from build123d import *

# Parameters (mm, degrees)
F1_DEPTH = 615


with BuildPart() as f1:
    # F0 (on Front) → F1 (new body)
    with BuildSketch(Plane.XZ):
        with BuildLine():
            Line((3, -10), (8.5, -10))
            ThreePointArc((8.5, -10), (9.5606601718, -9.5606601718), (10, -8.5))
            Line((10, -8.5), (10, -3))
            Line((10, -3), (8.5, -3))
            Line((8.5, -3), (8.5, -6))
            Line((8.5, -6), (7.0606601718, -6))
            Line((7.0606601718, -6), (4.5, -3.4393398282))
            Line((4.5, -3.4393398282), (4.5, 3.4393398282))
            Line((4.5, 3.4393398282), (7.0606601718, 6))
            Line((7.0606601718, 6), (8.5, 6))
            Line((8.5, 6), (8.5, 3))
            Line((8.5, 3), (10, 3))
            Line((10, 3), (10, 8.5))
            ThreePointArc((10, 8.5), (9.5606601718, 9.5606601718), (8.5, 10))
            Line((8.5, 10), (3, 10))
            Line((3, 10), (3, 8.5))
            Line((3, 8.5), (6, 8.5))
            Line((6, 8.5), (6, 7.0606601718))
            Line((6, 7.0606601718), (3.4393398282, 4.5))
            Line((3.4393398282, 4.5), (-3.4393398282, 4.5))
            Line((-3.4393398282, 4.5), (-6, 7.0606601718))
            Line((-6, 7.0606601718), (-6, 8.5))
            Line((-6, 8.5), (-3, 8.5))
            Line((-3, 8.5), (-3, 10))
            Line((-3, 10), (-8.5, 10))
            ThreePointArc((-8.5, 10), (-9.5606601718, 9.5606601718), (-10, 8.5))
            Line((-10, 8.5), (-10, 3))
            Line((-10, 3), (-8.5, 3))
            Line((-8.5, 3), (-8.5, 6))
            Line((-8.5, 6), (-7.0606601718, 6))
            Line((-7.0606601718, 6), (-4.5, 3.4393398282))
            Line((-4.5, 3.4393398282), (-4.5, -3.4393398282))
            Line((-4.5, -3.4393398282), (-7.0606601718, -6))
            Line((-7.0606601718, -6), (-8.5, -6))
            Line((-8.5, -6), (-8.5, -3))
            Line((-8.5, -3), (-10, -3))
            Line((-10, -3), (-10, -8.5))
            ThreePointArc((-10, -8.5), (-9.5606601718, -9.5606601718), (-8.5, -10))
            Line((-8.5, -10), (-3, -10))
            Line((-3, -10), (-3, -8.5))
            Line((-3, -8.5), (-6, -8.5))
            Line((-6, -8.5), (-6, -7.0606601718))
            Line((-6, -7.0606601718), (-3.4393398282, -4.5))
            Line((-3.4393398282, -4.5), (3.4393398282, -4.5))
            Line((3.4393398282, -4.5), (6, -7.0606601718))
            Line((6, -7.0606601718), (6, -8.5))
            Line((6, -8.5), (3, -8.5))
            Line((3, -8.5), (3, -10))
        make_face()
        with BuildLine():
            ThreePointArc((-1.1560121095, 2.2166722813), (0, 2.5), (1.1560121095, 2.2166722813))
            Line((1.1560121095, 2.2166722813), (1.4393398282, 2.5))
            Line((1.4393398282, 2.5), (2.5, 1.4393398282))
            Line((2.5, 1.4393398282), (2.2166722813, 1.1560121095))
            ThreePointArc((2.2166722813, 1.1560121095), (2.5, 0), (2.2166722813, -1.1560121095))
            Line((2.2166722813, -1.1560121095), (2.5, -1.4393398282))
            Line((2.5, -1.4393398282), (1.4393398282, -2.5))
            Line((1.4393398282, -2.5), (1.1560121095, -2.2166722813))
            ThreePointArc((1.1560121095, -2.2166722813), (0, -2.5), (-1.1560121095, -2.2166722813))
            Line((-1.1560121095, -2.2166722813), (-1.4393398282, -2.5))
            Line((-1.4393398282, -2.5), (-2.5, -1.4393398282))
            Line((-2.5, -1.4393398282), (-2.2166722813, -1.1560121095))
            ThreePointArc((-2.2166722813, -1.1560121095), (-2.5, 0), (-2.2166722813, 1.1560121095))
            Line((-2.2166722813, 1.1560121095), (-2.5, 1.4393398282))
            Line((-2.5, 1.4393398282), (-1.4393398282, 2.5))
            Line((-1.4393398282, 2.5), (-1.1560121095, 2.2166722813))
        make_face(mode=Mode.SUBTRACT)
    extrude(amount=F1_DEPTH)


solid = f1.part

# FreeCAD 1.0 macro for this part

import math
import FreeCAD as App
import Part
import Sketcher
Q = App.Units.Quantity

doc = App.newDocument("Part")
body = doc.addObject("PartDesign::Body", "Body")

# Sketch on XZ plane
sketch1 = body.newObject("Sketcher::SketchObject", "Sketch")
sketch1.AttachmentSupport = (doc.getObject("XZ_Plane"), [""])
sketch1.MapMode = "FlatFace"
sketch1.addGeometry(Part.LineSegment(App.Vector(3, -10, 0), App.Vector(8.5, -10, 0)), False)
sketch1.addGeometry(Part.ArcOfCircle(Part.Circle(App.Vector(8.5, -8.5, 0), App.Vector(0, 0, 1), 1.5), math.radians(-90), math.radians(0)), False)
sketch1.addGeometry(Part.LineSegment(App.Vector(10, -8.5, 0), App.Vector(10, -3, 0)), False)
sketch1.addGeometry(Part.LineSegment(App.Vector(10, -3, 0), App.Vector(8.5, -3, 0)), False)
sketch1.addGeometry(Part.LineSegment(App.Vector(8.5, -3, 0), App.Vector(8.5, -6, 0)), False)
sketch1.addGeometry(Part.LineSegment(App.Vector(8.5, -6, 0), App.Vector(7.06066, -6, 0)), False)
sketch1.addGeometry(Part.LineSegment(App.Vector(7.06066, -6, 0), App.Vector(4.5, -3.43934, 0)), False)
sketch1.addGeometry(Part.LineSegment(App.Vector(4.5, -3.43934, 0), App.Vector(4.5, 3.43934, 0)), False)
sketch1.addGeometry(Part.LineSegment(App.Vector(4.5, 3.43934, 0), App.Vector(7.06066, 6, 0)), False)
sketch1.addGeometry(Part.LineSegment(App.Vector(7.06066, 6, 0), App.Vector(8.5, 6, 0)), False)
sketch1.addGeometry(Part.LineSegment(App.Vector(8.5, 6, 0), App.Vector(8.5, 3, 0)), False)
sketch1.addGeometry(Part.LineSegment(App.Vector(8.5, 3, 0), App.Vector(10, 3, 0)), False)
sketch1.addGeometry(Part.LineSegment(App.Vector(10, 3, 0), App.Vector(10, 8.5, 0)), False)
sketch1.addGeometry(Part.ArcOfCircle(Part.Circle(App.Vector(8.5, 8.5, 0), App.Vector(0, 0, 1), 1.5), math.radians(0), math.radians(90)), False)
sketch1.addGeometry(Part.LineSegment(App.Vector(8.5, 10, 0), App.Vector(3, 10, 0)), False)
sketch1.addGeometry(Part.LineSegment(App.Vector(3, 10, 0), App.Vector(3, 8.5, 0)), False)
sketch1.addGeometry(Part.LineSegment(App.Vector(3, 8.5, 0), App.Vector(6, 8.5, 0)), False)
sketch1.addGeometry(Part.LineSegment(App.Vector(6, 8.5, 0), App.Vector(6, 7.06066, 0)), False)
sketch1.addGeometry(Part.LineSegment(App.Vector(6, 7.06066, 0), App.Vector(3.43934, 4.5, 0)), False)
sketch1.addGeometry(Part.LineSegment(App.Vector(3.43934, 4.5, 0), App.Vector(-3.43934, 4.5, 0)), False)
sketch1.addGeometry(Part.LineSegment(App.Vector(-3.43934, 4.5, 0), App.Vector(-6, 7.06066, 0)), False)
sketch1.addGeometry(Part.LineSegment(App.Vector(-6, 7.06066, 0), App.Vector(-6, 8.5, 0)), False)
sketch1.addGeometry(Part.LineSegment(App.Vector(-6, 8.5, 0), App.Vector(-3, 8.5, 0)), False)
sketch1.addGeometry(Part.LineSegment(App.Vector(-3, 8.5, 0), App.Vector(-3, 10, 0)), False)
sketch1.addGeometry(Part.LineSegment(App.Vector(-3, 10, 0), App.Vector(-8.5, 10, 0)), False)
sketch1.addGeometry(Part.ArcOfCircle(Part.Circle(App.Vector(-8.5, 8.5, 0), App.Vector(0, 0, 1), 1.5), math.radians(90), math.radians(180)), False)
sketch1.addGeometry(Part.LineSegment(App.Vector(-10, 8.5, 0), App.Vector(-10, 3, 0)), False)
sketch1.addGeometry(Part.LineSegment(App.Vector(-10, 3, 0), App.Vector(-8.5, 3, 0)), False)
sketch1.addGeometry(Part.LineSegment(App.Vector(-8.5, 3, 0), App.Vector(-8.5, 6, 0)), False)
sketch1.addGeometry(Part.LineSegment(App.Vector(-8.5, 6, 0), App.Vector(-7.06066, 6, 0)), False)
sketch1.addGeometry(Part.LineSegment(App.Vector(-7.06066, 6, 0), App.Vector(-4.5, 3.43934, 0)), False)
sketch1.addGeometry(Part.LineSegment(App.Vector(-4.5, 3.43934, 0), App.Vector(-4.5, -3.43934, 0)), False)
sketch1.addGeometry(Part.LineSegment(App.Vector(-4.5, -3.43934, 0), App.Vector(-7.06066, -6, 0)), False)
sketch1.addGeometry(Part.LineSegment(App.Vector(-7.06066, -6, 0), App.Vector(-8.5, -6, 0)), False)
sketch1.addGeometry(Part.LineSegment(App.Vector(-8.5, -6, 0), App.Vector(-8.5, -3, 0)), False)
sketch1.addGeometry(Part.LineSegment(App.Vector(-8.5, -3, 0), App.Vector(-10, -3, 0)), False)
sketch1.addGeometry(Part.LineSegment(App.Vector(-10, -3, 0), App.Vector(-10, -8.5, 0)), False)
sketch1.addGeometry(Part.ArcOfCircle(Part.Circle(App.Vector(-8.5, -8.5, 0), App.Vector(0, 0, 1), 1.5), math.radians(180), math.radians(270)), False)
sketch1.addGeometry(Part.LineSegment(App.Vector(-8.5, -10, 0), App.Vector(-3, -10, 0)), False)
sketch1.addGeometry(Part.LineSegment(App.Vector(-3, -10, 0), App.Vector(-3, -8.5, 0)), False)
sketch1.addGeometry(Part.LineSegment(App.Vector(-3, -8.5, 0), App.Vector(-6, -8.5, 0)), False)
sketch1.addGeometry(Part.LineSegment(App.Vector(-6, -8.5, 0), App.Vector(-6, -7.06066, 0)), False)
sketch1.addGeometry(Part.LineSegment(App.Vector(-6, -7.06066, 0), App.Vector(-3.43934, -4.5, 0)), False)
sketch1.addGeometry(Part.LineSegment(App.Vector(-3.43934, -4.5, 0), App.Vector(3.43934, -4.5, 0)), False)
sketch1.addGeometry(Part.LineSegment(App.Vector(3.43934, -4.5, 0), App.Vector(6, -7.06066, 0)), False)
sketch1.addGeometry(Part.LineSegment(App.Vector(6, -7.06066, 0), App.Vector(6, -8.5, 0)), False)
sketch1.addGeometry(Part.LineSegment(App.Vector(6, -8.5, 0), App.Vector(3, -8.5, 0)), False)
sketch1.addGeometry(Part.LineSegment(App.Vector(3, -8.5, 0), App.Vector(3, -10, 0)), False)
sketch1.addGeometry(Part.LineSegment(App.Vector(-1.43934, 2.5, 0), App.Vector(-1.156012, 2.216672, 0)), False)
sketch1.addGeometry(Part.ArcOfCircle(Part.Circle(App.Vector(0, 0, 0), App.Vector(0, 0, 1), 2.5), math.radians(62.457603), math.radians(117.542397)), False)
sketch1.addGeometry(Part.LineSegment(App.Vector(1.156012, 2.216672, 0), App.Vector(1.43934, 2.5, 0)), False)
sketch1.addGeometry(Part.LineSegment(App.Vector(1.43934, 2.5, 0), App.Vector(2.5, 1.43934, 0)), False)
sketch1.addGeometry(Part.LineSegment(App.Vector(2.5, 1.43934, 0), App.Vector(2.216672, 1.156012, 0)), False)
sketch1.addGeometry(Part.ArcOfCircle(Part.Circle(App.Vector(0, 0, 0), App.Vector(0, 0, 1), 2.5), math.radians(-27.542397), math.radians(27.542397)), False)
sketch1.addGeometry(Part.LineSegment(App.Vector(2.216672, -1.156012, 0), App.Vector(2.5, -1.43934, 0)), False)
sketch1.addGeometry(Part.LineSegment(App.Vector(2.5, -1.43934, 0), App.Vector(1.43934, -2.5, 0)), False)
sketch1.addGeometry(Part.LineSegment(App.Vector(1.43934, -2.5, 0), App.Vector(1.156012, -2.216672, 0)), False)
sketch1.addGeometry(Part.ArcOfCircle(Part.Circle(App.Vector(0, 0, 0), App.Vector(0, 0, 1), 2.5), math.radians(-117.542397), math.radians(-62.457603)), False)
sketch1.addGeometry(Part.LineSegment(App.Vector(-1.156012, -2.216672, 0), App.Vector(-1.43934, -2.5, 0)), False)
sketch1.addGeometry(Part.LineSegment(App.Vector(-1.43934, -2.5, 0), App.Vector(-2.5, -1.43934, 0)), False)
sketch1.addGeometry(Part.LineSegment(App.Vector(-2.5, -1.43934, 0), App.Vector(-2.216672, -1.156012, 0)), False)
sketch1.addGeometry(Part.ArcOfCircle(Part.Circle(App.Vector(0, 0, 0), App.Vector(0, 0, 1), 2.5), math.radians(152.457603), math.radians(207.542397)), False)
sketch1.addGeometry(Part.LineSegment(App.Vector(-2.216672, 1.156012, 0), App.Vector(-2.5, 1.43934, 0)), False)
sketch1.addGeometry(Part.LineSegment(App.Vector(-2.5, 1.43934, 0), App.Vector(-1.43934, 2.5, 0)), False)
sketch1.addConstraint(Sketcher.Constraint("Tangent", 0, 2, 1, 1))
sketch1.addConstraint(Sketcher.Constraint("Tangent", 1, 2, 2, 1))
sketch1.addConstraint(Sketcher.Constraint("Coincident", 2, 2, 3, 1))
sketch1.addConstraint(Sketcher.Constraint("Coincident", 3, 2, 4, 1))
sketch1.addConstraint(Sketcher.Constraint("Coincident", 4, 2, 5, 1))
sketch1.addConstraint(Sketcher.Constraint("Coincident", 5, 2, 6, 1))
sketch1.addConstraint(Sketcher.Constraint("Coincident", 6, 2, 7, 1))
sketch1.addConstraint(Sketcher.Constraint("Coincident", 7, 2, 8, 1))
sketch1.addConstraint(Sketcher.Constraint("Coincident", 8, 2, 9, 1))
sketch1.addConstraint(Sketcher.Constraint("Coincident", 9, 2, 10, 1))
sketch1.addConstraint(Sketcher.Constraint("Coincident", 10, 2, 11, 1))
sketch1.addConstraint(Sketcher.Constraint("Coincident", 11, 2, 12, 1))
sketch1.addConstraint(Sketcher.Constraint("Tangent", 12, 2, 13, 1))
sketch1.addConstraint(Sketcher.Constraint("Tangent", 13, 2, 14, 1))
sketch1.addConstraint(Sketcher.Constraint("Coincident", 14, 2, 15, 1))
sketch1.addConstraint(Sketcher.Constraint("Coincident", 15, 2, 16, 1))
sketch1.addConstraint(Sketcher.Constraint("Coincident", 16, 2, 17, 1))
sketch1.addConstraint(Sketcher.Constraint("Coincident", 17, 2, 18, 1))
sketch1.addConstraint(Sketcher.Constraint("Coincident", 18, 2, 19, 1))
sketch1.addConstraint(Sketcher.Constraint("Coincident", 19, 2, 20, 1))
sketch1.addConstraint(Sketcher.Constraint("Coincident", 20, 2, 21, 1))
sketch1.addConstraint(Sketcher.Constraint("Coincident", 21, 2, 22, 1))
sketch1.addConstraint(Sketcher.Constraint("Coincident", 22, 2, 23, 1))
sketch1.addConstraint(Sketcher.Constraint("Coincident", 23, 2, 24, 1))
sketch1.addConstraint(Sketcher.Constraint("Tangent", 24, 2, 25, 1))
sketch1.addConstraint(Sketcher.Constraint("Tangent", 25, 2, 26, 1))
sketch1.addConstraint(Sketcher.Constraint("Coincident", 26, 2, 27, 1))
sketch1.addConstraint(Sketcher.Constraint("Coincident", 27, 2, 28, 1))
sketch1.addConstraint(Sketcher.Constraint("Coincident", 28, 2, 29, 1))
sketch1.addConstraint(Sketcher.Constraint("Coincident", 29, 2, 30, 1))
sketch1.addConstraint(Sketcher.Constraint("Coincident", 30, 2, 31, 1))
sketch1.addConstraint(Sketcher.Constraint("Coincident", 31, 2, 32, 1))
sketch1.addConstraint(Sketcher.Constraint("Coincident", 32, 2, 33, 1))
sketch1.addConstraint(Sketcher.Constraint("Coincident", 33, 2, 34, 1))
sketch1.addConstraint(Sketcher.Constraint("Coincident", 34, 2, 35, 1))
sketch1.addConstraint(Sketcher.Constraint("Coincident", 35, 2, 36, 1))
sketch1.addConstraint(Sketcher.Constraint("Tangent", 36, 2, 37, 1))
sketch1.addConstraint(Sketcher.Constraint("Tangent", 37, 2, 38, 1))
sketch1.addConstraint(Sketcher.Constraint("Coincident", 38, 2, 39, 1))
sketch1.addConstraint(Sketcher.Constraint("Coincident", 39, 2, 40, 1))
sketch1.addConstraint(Sketcher.Constraint("Coincident", 40, 2, 41, 1))
sketch1.addConstraint(Sketcher.Constraint("Coincident", 41, 2, 42, 1))
sketch1.addConstraint(Sketcher.Constraint("Coincident", 42, 2, 43, 1))
sketch1.addConstraint(Sketcher.Constraint("Coincident", 43, 2, 44, 1))
sketch1.addConstraint(Sketcher.Constraint("Coincident", 44, 2, 45, 1))
sketch1.addConstraint(Sketcher.Constraint("Coincident", 45, 2, 46, 1))
sketch1.addConstraint(Sketcher.Constraint("Coincident", 46, 2, 47, 1))
sketch1.addConstraint(Sketcher.Constraint("Coincident", 47, 2, 0, 1))
sketch1.addConstraint(Sketcher.Constraint("Coincident", 48, 2, 49, 2))
sketch1.addConstraint(Sketcher.Constraint("Coincident", 49, 1, 50, 1))
sketch1.addConstraint(Sketcher.Constraint("Coincident", 50, 2, 51, 1))
sketch1.addConstraint(Sketcher.Constraint("Coincident", 51, 2, 52, 1))
sketch1.addConstraint(Sketcher.Constraint("Coincident", 52, 2, 53, 2))
sketch1.addConstraint(Sketcher.Constraint("Coincident", 53, 1, 54, 1))
sketch1.addConstraint(Sketcher.Constraint("Coincident", 54, 2, 55, 1))
sketch1.addConstraint(Sketcher.Constraint("Coincident", 55, 2, 56, 1))
sketch1.addConstraint(Sketcher.Constraint("Coincident", 56, 2, 57, 2))
sketch1.addConstraint(Sketcher.Constraint("Coincident", 57, 1, 58, 1))
sketch1.addConstraint(Sketcher.Constraint("Coincident", 58, 2, 59, 1))
sketch1.addConstraint(Sketcher.Constraint("Coincident", 59, 2, 60, 1))
sketch1.addConstraint(Sketcher.Constraint("Coincident", 60, 2, 61, 2))
sketch1.addConstraint(Sketcher.Constraint("Coincident", 61, 1, 62, 1))
sketch1.addConstraint(Sketcher.Constraint("Coincident", 62, 2, 63, 1))
sketch1.addConstraint(Sketcher.Constraint("Coincident", 63, 2, 48, 1))
sketch1.addConstraint(Sketcher.Constraint("Horizontal", 0))
sketch1.addConstraint(Sketcher.Constraint("Vertical", 2))
sketch1.addConstraint(Sketcher.Constraint("Horizontal", 3))
sketch1.addConstraint(Sketcher.Constraint("Vertical", 4))
sketch1.addConstraint(Sketcher.Constraint("Horizontal", 5))
sketch1.addConstraint(Sketcher.Constraint("Vertical", 7))
sketch1.addConstraint(Sketcher.Constraint("Horizontal", 9))
sketch1.addConstraint(Sketcher.Constraint("Vertical", 10))
sketch1.addConstraint(Sketcher.Constraint("Horizontal", 11))
sketch1.addConstraint(Sketcher.Constraint("Vertical", 12))
sketch1.addConstraint(Sketcher.Constraint("Horizontal", 14))
sketch1.addConstraint(Sketcher.Constraint("Vertical", 15))
sketch1.addConstraint(Sketcher.Constraint("Horizontal", 16))
sketch1.addConstraint(Sketcher.Constraint("Vertical", 17))
sketch1.addConstraint(Sketcher.Constraint("Horizontal", 19))
sketch1.addConstraint(Sketcher.Constraint("Vertical", 21))
sketch1.addConstraint(Sketcher.Constraint("Horizontal", 22))
sketch1.addConstraint(Sketcher.Constraint("Vertical", 23))
sketch1.addConstraint(Sketcher.Constraint("Horizontal", 24))
sketch1.addConstraint(Sketcher.Constraint("Vertical", 26))
sketch1.addConstraint(Sketcher.Constraint("Horizontal", 27))
sketch1.addConstraint(Sketcher.Constraint("Vertical", 28))
sketch1.addConstraint(Sketcher.Constraint("Horizontal", 29))
sketch1.addConstraint(Sketcher.Constraint("Vertical", 31))
sketch1.addConstraint(Sketcher.Constraint("Horizontal", 33))
sketch1.addConstraint(Sketcher.Constraint("Vertical", 34))
sketch1.addConstraint(Sketcher.Constraint("Horizontal", 35))
sketch1.addConstraint(Sketcher.Constraint("Vertical", 36))
sketch1.addConstraint(Sketcher.Constraint("Horizontal", 38))
sketch1.addConstraint(Sketcher.Constraint("Vertical", 39))
sketch1.addConstraint(Sketcher.Constraint("Horizontal", 40))
sketch1.addConstraint(Sketcher.Constraint("Vertical", 41))
sketch1.addConstraint(Sketcher.Constraint("Horizontal", 43))
sketch1.addConstraint(Sketcher.Constraint("Vertical", 45))
sketch1.addConstraint(Sketcher.Constraint("Horizontal", 46))
sketch1.addConstraint(Sketcher.Constraint("Vertical", 47))
sketch1.addConstraint(Sketcher.Constraint("Coincident", 49, 3, -1, 1))
sketch1.addConstraint(Sketcher.Constraint("Coincident", 53, 3, -1, 1))
sketch1.addConstraint(Sketcher.Constraint("Coincident", 57, 3, -1, 1))
sketch1.addConstraint(Sketcher.Constraint("Coincident", 61, 3, -1, 1))
sketch1.addConstraint(Sketcher.Constraint("Equal", 1, 13))
sketch1.addConstraint(Sketcher.Constraint("Equal", 13, 25))
sketch1.addConstraint(Sketcher.Constraint("Equal", 25, 37))
sketch1.addConstraint(Sketcher.Constraint("Equal", 49, 53))
sketch1.addConstraint(Sketcher.Constraint("Equal", 53, 57))
sketch1.addConstraint(Sketcher.Constraint("Equal", 57, 61))
sketch1.addConstraint(Sketcher.Constraint("Symmetric", 1, 3, 25, 3, -1, 1))
sketch1.addConstraint(Sketcher.Constraint("Symmetric", 13, 3, 37, 3, -1, 1))
sketch1.addConstraint(Sketcher.Constraint("Symmetric", 3, 2, 27, 2, -1, 1))
sketch1.addConstraint(Sketcher.Constraint("Symmetric", 5, 2, 29, 2, -1, 1))
sketch1.addConstraint(Sketcher.Constraint("Symmetric", 6, 2, 30, 2, -1, 1))
sketch1.addConstraint(Sketcher.Constraint("Symmetric", 8, 2, 32, 2, -1, 1))
sketch1.addConstraint(Sketcher.Constraint("Symmetric", 10, 2, 34, 2, -1, 1))
sketch1.addConstraint(Sketcher.Constraint("Symmetric", 15, 2, 39, 2, -1, 1))
sketch1.addConstraint(Sketcher.Constraint("Symmetric", 17, 2, 41, 2, -1, 1))
sketch1.addConstraint(Sketcher.Constraint("Symmetric", 18, 2, 42, 2, -1, 1))
sketch1.addConstraint(Sketcher.Constraint("Symmetric", 20, 2, 44, 2, -1, 1))
sketch1.addConstraint(Sketcher.Constraint("Symmetric", 22, 2, 46, 2, -1, 1))
sketch1.addConstraint(Sketcher.Constraint("Symmetric", 50, 2, 58, 2, -1, 1))
sketch1.addConstraint(Sketcher.Constraint("Symmetric", 51, 2, 59, 2, -1, 1))
sketch1.addConstraint(Sketcher.Constraint("Symmetric", 54, 2, 62, 2, -1, 1))
sketch1.addConstraint(Sketcher.Constraint("Symmetric", 55, 2, 63, 2, -1, 1))
sketch1.addConstraint(Sketcher.Constraint("Symmetric", 13, 3, 25, 3, -2))
sketch1.addConstraint(Sketcher.Constraint("Symmetric", 17, 2, 20, 2, -2))
sketch1.addConstraint(Sketcher.Constraint("Symmetric", 15, 2, 22, 2, -2))
sketch1.addConstraint(Sketcher.Constraint("Symmetric", 10, 2, 27, 2, -2))
sketch1.addConstraint(Sketcher.Constraint("Symmetric", 8, 2, 29, 2, -2))
sketch1.addConstraint(Sketcher.Constraint("Symmetric", 55, 2, 58, 2, -2))
sketch1.addConstraint(Sketcher.Constraint("Symmetric", 54, 2, 59, 2, -2))
sketch1.addConstraint(Sketcher.Constraint("Perpendicular", 6, 8))
sketch1.addConstraint(Sketcher.Constraint("Parallel", 8, 18))
sketch1.addConstraint(Sketcher.Constraint("Perpendicular", 18, 20))
sketch1.addConstraint(Sketcher.Constraint("Perpendicular", 30, 32))
sketch1.addConstraint(Sketcher.Constraint("Perpendicular", 42, 44))
sketch1.addConstraint(Sketcher.Constraint("Parallel", 44, 48))
sketch1.addConstraint(Sketcher.Constraint("Perpendicular", 48, 50))
sketch1.addConstraint(Sketcher.Constraint("Perpendicular", 50, 51))
sketch1.addConstraint(Sketcher.Constraint("Perpendicular", 51, 52))
sketch1.addConstraint(Sketcher.Constraint("Perpendicular", 52, 54))
sketch1.addConstraint(Sketcher.Constraint("Perpendicular", 54, 55))
sketch1.addConstraint(Sketcher.Constraint("Perpendicular", 55, 56))
sketch1.addConstraint(Sketcher.Constraint("Perpendicular", 56, 58))
sketch1.addConstraint(Sketcher.Constraint("Perpendicular", 59, 60))
sketch1.addConstraint(Sketcher.Constraint("Perpendicular", 60, 62))
sketch1.addConstraint(Sketcher.Constraint("Horizontal", 12, 2, 15, 2))
sketch1.addConstraint(Sketcher.Constraint("Vertical", 0, 2, 3, 2))
sketch1.addConstraint(Sketcher.Constraint("Equal", 38, 2))
sketch1.addConstraint(Sketcher.Constraint("Equal", 46, 4))
sketch1.addConstraint(Sketcher.Constraint("Equal", 43, 7))
sketch1.addConstraint(Sketcher.Constraint("Equal", 33, 17))
sketch1.addConstraint(Sketcher.Constraint("Equal", 8, 18))
sketch1.addConstraint(Sketcher.Constraint("Equal", 50, 52))
sketch1.addConstraint(Sketcher.Constraint("Radius", 1, Q("1.5 mm")))
sketch1.addConstraint(Sketcher.Constraint("Radius", 49, Q("2.5 mm")))
sketch1.addConstraint(Sketcher.Constraint("DistanceX", 16, 1, 16, 2, Q("3 mm")))
sketch1.addConstraint(Sketcher.Constraint("DistanceX", 0, 1, 0, 2, Q("5.5 mm")))
sketch1.addConstraint(Sketcher.Constraint("DistanceY", 0, 2, -1, 1, Q("10 mm")))
sketch1.addConstraint(Sketcher.Constraint("Distance", 51, Q("1.5 mm")))
sketch1.addConstraint(Sketcher.Constraint("DistanceX", -1, 1, 6, 2, Q("4.5 mm")))
sketch1.addConstraint(Sketcher.Constraint("DistanceY", -1, 1, 50, 2, Q("2.5 mm")))
sketch1.addConstraint(Sketcher.Constraint("DistanceX", 5, 2, 5, 1, Q("1.43934 mm")))
pad1 = body.newObject("PartDesign::Pad", "Pad")
pad1.Profile = sketch1
pad1.Length = 615

doc.recompute()
